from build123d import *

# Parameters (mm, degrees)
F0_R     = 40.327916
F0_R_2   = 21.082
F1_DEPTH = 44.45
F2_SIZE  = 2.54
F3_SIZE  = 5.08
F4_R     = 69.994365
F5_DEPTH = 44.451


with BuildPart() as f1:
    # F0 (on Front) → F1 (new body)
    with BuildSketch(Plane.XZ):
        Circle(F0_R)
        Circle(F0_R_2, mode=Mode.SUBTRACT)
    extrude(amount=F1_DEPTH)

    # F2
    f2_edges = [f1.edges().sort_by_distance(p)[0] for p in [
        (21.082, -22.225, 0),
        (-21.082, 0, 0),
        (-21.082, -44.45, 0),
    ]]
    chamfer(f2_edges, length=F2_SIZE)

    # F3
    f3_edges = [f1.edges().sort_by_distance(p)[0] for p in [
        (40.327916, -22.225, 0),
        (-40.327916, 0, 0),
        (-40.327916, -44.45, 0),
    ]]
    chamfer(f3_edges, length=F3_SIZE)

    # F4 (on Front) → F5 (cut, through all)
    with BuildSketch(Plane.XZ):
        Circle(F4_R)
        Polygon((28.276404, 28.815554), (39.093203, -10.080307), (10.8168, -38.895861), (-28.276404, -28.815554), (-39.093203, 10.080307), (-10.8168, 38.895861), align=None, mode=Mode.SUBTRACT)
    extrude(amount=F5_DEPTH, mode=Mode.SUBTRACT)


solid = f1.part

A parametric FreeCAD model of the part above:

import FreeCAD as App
import Part
import Sketcher
from FreeCAD import Vector
Q = App.Units.Quantity


def edges_at(feature, points):
    """Names of the edges that pass closest to the given points."""
    edges = feature.Shape.Edges
    near = lambda p: min(range(len(edges)), key=lambda i: edges[i].distToShape(Part.Vertex(*p))[0])
    return sorted({f"Edge{near(p) + 1}" for p in points})


def add_polygon(sketch, points):
    """Adds a closed chain of lines whose ends are joined by coincident constraints."""
    first, n = sketch.GeometryCount, len(points)
    for a, b in zip(points, points[1:] + points[:1]):
        sketch.addGeometry(Part.LineSegment(App.Vector(*a, 0), App.Vector(*b, 0)), False)
    for i in range(n):
        sketch.addConstraint(Sketcher.Constraint("Coincident", first + i, 2, first + (i + 1) % n, 1))

doc = App.newDocument("Part")
body = doc.addObject("PartDesign::Body", "Body")

# Sketch on XZ plane
sketch1 = body.newObject("Sketcher::SketchObject", "Sketch")
sketch1.AttachmentSupport = (doc.getObject("XZ_Plane"), [""])
sketch1.MapMode = "FlatFace"
sketch1.addGeometry([
    Part.Circle(Vector(0, 0, 0), Vector(0, 0, 1), 40.327916),
    Part.Circle(Vector(0, 0, 0), Vector(0, 0, 1), 21.082),
], False)
sketch1.addConstraint([
    Sketcher.Constraint("Coincident", 0, 3, -1, 1),
    Sketcher.Constraint("Coincident", 1, 3, -1, 1),
    Sketcher.Constraint("Diameter", 1, Q("1.66 in")),
    Sketcher.Constraint("Diameter", 0, 80.655832),
])
pad1 = body.newObject("PartDesign::Pad", "Pad")
pad1.Profile = sketch1
pad1.Length = Q("1.75 in")
doc.recompute()

chamfer = body.newObject("PartDesign::Chamfer", "Chamfer")
chamfer.Base = (pad1, edges_at(pad1, [(21.082, -22.225, 0), (-21.082, 0, 0), (-21.082, -44.45, 0)]))
chamfer.Size = Q("0.1 in")
doc.recompute()

chamfer2 = body.newObject("PartDesign::Chamfer", "Chamfer001")
chamfer2.Base = (chamfer, edges_at(chamfer, [(40.328, -22.225, 0), (-40.328, 0, 0), (-40.328, -44.45, 0)]))
chamfer2.Size = Q("0.2 in")

# Sketch on XZ plane
sketch2 = body.newObject("Sketcher::SketchObject", "Sketch001")
sketch2.AttachmentSupport = (doc.getObject("XZ_Plane"), [""])
sketch2.MapMode = "FlatFace"
sketch2.addGeometry(Part.Circle(Vector(0, 0, 0), Vector(0, 0, 1), 69.994365), False)  # 0
add_polygon(sketch2, [(-10.8168, 38.895861), (28.276404, 28.815554), (39.093203, -10.080307), (10.8168, -38.895861), (-28.276404, -28.815554), (-39.093203, 10.080307)])  # lines 1-6
sketch2.addConstraint([
    Sketcher.Constraint("Coincident", 0, 3, -1, 1),
    Sketcher.Constraint("Symmetric", 1, 2, 4, 2, -1, 1),
    Sketcher.Constraint("Symmetric", 2, 2, 5, 2, -1, 1),
    Sketcher.Constraint("Symmetric", 3, 2, 6, 2, -1, 1),
    Sketcher.Constraint("Equal", 1, 2),
    Sketcher.Constraint("Equal", 2, 3),
    Sketcher.Constraint("Diameter", 0, 139.98873),
    Sketcher.Constraint("DistanceX", -1, 1, 3, 2, 10.8168),
    Sketcher.Constraint("DistanceX", 1, 2, 2, 2, 10.816799),
    Sketcher.Constraint("Distance", 1, 40.371911),
    Sketcher.Constraint("DistanceY", 3, 2, -1, 1, 38.895861),
])
pocket1 = body.newObject("PartDesign::Pocket", "Pocket")
pocket1.Profile = sketch2
pocket1.Type = "ThroughAll"
pocket1.Reversed = True

doc.recompute()
